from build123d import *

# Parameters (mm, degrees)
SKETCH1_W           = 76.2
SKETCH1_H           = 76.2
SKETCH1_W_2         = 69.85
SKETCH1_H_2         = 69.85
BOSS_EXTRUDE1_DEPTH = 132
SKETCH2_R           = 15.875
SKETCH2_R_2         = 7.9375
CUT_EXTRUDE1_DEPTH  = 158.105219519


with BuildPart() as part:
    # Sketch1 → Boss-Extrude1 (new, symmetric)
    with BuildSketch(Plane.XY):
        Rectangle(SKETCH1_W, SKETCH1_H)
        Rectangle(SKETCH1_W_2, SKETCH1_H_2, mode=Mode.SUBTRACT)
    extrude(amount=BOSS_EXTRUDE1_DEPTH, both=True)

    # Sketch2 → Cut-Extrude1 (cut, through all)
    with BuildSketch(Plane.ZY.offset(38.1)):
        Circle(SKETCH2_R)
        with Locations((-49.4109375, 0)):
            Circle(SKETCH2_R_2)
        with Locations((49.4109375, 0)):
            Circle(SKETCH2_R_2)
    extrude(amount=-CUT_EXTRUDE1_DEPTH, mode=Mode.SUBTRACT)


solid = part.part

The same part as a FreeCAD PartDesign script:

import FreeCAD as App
import Part
import Sketcher
from FreeCAD import Vector
Q = App.Units.Quantity

doc = App.newDocument("Part")
body = doc.addObject("PartDesign::Body", "Body")

sketch1 = body.newObject("Sketcher::SketchObject", "Sketch")
sketch1.AttachmentSupport = (doc.getObject("XY_Plane"), [""])
sketch1.MapMode = "FlatFace"
sketch1.addGeometry(Part.LineSegment(Vector(-38, 38, 0), Vector(-38, -38, 0)), False)
sketch1.addGeometry(Part.LineSegment(Vector(-38, -38, 0), Vector(38, -38, 0)), False)
sketch1.addGeometry(Part.LineSegment(Vector(38, -38, 0), Vector(38, 38, 0)), False)
sketch1.addGeometry(Part.LineSegment(Vector(38, 38, 0), Vector(-38, 38, 0)), False)
sketch1.addGeometry(Part.LineSegment(Vector(35, -35, 0), Vector(-35, -35, 0)), False)
sketch1.addGeometry(Part.LineSegment(Vector(-35, -35, 0), Vector(-35, 35, 0)), False)
sketch1.addGeometry(Part.LineSegment(Vector(-35, 35, 0), Vector(35, 35, 0)), False)
sketch1.addGeometry(Part.LineSegment(Vector(35, 35, 0), Vector(35, -35, 0)), False)
sketch1.addConstraint(Sketcher.Constraint("Coincident", 0, 2, 1, 1))
sketch1.addConstraint(Sketcher.Constraint("Coincident", 1, 2, 2, 1))
sketch1.addConstraint(Sketcher.Constraint("Coincident", 2, 2, 3, 1))
sketch1.addConstraint(Sketcher.Constraint("Coincident", 3, 2, 0, 1))
sketch1.addConstraint(Sketcher.Constraint("Coincident", 4, 2, 5, 1))
sketch1.addConstraint(Sketcher.Constraint("Coincident", 5, 2, 6, 1))
sketch1.addConstraint(Sketcher.Constraint("Coincident", 6, 2, 7, 1))
sketch1.addConstraint(Sketcher.Constraint("Coincident", 7, 2, 4, 1))
sketch1.addConstraint(Sketcher.Constraint("Vertical", 0))
sketch1.addConstraint(Sketcher.Constraint("Horizontal", 1))
sketch1.addConstraint(Sketcher.Constraint("Vertical", 2))
sketch1.addConstraint(Sketcher.Constraint("Horizontal", 3))
sketch1.addConstraint(Sketcher.Constraint("Horizontal", 4))
sketch1.addConstraint(Sketcher.Constraint("Vertical", 5))
sketch1.addConstraint(Sketcher.Constraint("Horizontal", 6))
sketch1.addConstraint(Sketcher.Constraint("Vertical", 7))
sketch1.addConstraint(Sketcher.Constraint("Symmetric", 0, 2, 2, 2, -1, 1))
sketch1.addConstraint(Sketcher.Constraint("Symmetric", 4, 2, 6, 2, -1, 1))
sketch1.addConstraint(Sketcher.Constraint("Equal", 3, 0))
sketch1.addConstraint(Sketcher.Constraint("Equal", 6, 5))
sketch1.addConstraint(Sketcher.Constraint("DistanceX", 1, 1, 1, 2, Q("3 in")))
sketch1.addConstraint(Sketcher.Constraint("DistanceX", 4, 2, 4, 1, Q("2.75 in")))
pad1 = body.newObject("PartDesign::Pad", "Pad")
pad1.Profile = sketch1
pad1.Length = 264
pad1.Midplane = True

sketch2 = body.newObject("Sketcher::SketchObject", "Sketch001")
sketch2.AttachmentSupport = (doc.getObject("YZ_Plane"), [""])
sketch2.MapMode = "FlatFace"
sketch2.AttachmentOffset = App.Placement(Vector(0, 0, -1.5 * 25.4), App.Rotation())
sketch2.addGeometry(Part.Circle(Vector(0, 0, 0), Vector(0, 0, 1), 16), False)
sketch2.addGeometry(Part.Circle(Vector(0, -49, 0), Vector(0, 0, 1), 8), False)
sketch2.addGeometry(Part.Circle(Vector(0, 49, 0), Vector(0, 0, 1), 8), False)
sketch2.addConstraint(Sketcher.Constraint("Coincident", 0, 3, -1, 1))
sketch2.addConstraint(Sketcher.Constraint("Equal", 1, 2))
sketch2.addConstraint(Sketcher.Constraint("Symmetric", 1, 3, 2, 3, -1, 1))
sketch2.addConstraint(Sketcher.Constraint("PointOnObject", 1, 3, -2))
sketch2.addConstraint(Sketcher.Constraint("Diameter", 0, Q("1.25 in")))
sketch2.addConstraint(Sketcher.Constraint("Diameter", 1, Q("0.625 in")))
sketch2.addConstraint(Sketcher.Constraint("DistanceY", 1, 3, 2, 3, Q("3.890625 in")))
pocket1 = body.newObject("PartDesign::Pocket", "Pocket")
pocket1.Profile = sketch2
pocket1.Type = "ThroughAll"
pocket1.Reversed = True

doc.recompute()
